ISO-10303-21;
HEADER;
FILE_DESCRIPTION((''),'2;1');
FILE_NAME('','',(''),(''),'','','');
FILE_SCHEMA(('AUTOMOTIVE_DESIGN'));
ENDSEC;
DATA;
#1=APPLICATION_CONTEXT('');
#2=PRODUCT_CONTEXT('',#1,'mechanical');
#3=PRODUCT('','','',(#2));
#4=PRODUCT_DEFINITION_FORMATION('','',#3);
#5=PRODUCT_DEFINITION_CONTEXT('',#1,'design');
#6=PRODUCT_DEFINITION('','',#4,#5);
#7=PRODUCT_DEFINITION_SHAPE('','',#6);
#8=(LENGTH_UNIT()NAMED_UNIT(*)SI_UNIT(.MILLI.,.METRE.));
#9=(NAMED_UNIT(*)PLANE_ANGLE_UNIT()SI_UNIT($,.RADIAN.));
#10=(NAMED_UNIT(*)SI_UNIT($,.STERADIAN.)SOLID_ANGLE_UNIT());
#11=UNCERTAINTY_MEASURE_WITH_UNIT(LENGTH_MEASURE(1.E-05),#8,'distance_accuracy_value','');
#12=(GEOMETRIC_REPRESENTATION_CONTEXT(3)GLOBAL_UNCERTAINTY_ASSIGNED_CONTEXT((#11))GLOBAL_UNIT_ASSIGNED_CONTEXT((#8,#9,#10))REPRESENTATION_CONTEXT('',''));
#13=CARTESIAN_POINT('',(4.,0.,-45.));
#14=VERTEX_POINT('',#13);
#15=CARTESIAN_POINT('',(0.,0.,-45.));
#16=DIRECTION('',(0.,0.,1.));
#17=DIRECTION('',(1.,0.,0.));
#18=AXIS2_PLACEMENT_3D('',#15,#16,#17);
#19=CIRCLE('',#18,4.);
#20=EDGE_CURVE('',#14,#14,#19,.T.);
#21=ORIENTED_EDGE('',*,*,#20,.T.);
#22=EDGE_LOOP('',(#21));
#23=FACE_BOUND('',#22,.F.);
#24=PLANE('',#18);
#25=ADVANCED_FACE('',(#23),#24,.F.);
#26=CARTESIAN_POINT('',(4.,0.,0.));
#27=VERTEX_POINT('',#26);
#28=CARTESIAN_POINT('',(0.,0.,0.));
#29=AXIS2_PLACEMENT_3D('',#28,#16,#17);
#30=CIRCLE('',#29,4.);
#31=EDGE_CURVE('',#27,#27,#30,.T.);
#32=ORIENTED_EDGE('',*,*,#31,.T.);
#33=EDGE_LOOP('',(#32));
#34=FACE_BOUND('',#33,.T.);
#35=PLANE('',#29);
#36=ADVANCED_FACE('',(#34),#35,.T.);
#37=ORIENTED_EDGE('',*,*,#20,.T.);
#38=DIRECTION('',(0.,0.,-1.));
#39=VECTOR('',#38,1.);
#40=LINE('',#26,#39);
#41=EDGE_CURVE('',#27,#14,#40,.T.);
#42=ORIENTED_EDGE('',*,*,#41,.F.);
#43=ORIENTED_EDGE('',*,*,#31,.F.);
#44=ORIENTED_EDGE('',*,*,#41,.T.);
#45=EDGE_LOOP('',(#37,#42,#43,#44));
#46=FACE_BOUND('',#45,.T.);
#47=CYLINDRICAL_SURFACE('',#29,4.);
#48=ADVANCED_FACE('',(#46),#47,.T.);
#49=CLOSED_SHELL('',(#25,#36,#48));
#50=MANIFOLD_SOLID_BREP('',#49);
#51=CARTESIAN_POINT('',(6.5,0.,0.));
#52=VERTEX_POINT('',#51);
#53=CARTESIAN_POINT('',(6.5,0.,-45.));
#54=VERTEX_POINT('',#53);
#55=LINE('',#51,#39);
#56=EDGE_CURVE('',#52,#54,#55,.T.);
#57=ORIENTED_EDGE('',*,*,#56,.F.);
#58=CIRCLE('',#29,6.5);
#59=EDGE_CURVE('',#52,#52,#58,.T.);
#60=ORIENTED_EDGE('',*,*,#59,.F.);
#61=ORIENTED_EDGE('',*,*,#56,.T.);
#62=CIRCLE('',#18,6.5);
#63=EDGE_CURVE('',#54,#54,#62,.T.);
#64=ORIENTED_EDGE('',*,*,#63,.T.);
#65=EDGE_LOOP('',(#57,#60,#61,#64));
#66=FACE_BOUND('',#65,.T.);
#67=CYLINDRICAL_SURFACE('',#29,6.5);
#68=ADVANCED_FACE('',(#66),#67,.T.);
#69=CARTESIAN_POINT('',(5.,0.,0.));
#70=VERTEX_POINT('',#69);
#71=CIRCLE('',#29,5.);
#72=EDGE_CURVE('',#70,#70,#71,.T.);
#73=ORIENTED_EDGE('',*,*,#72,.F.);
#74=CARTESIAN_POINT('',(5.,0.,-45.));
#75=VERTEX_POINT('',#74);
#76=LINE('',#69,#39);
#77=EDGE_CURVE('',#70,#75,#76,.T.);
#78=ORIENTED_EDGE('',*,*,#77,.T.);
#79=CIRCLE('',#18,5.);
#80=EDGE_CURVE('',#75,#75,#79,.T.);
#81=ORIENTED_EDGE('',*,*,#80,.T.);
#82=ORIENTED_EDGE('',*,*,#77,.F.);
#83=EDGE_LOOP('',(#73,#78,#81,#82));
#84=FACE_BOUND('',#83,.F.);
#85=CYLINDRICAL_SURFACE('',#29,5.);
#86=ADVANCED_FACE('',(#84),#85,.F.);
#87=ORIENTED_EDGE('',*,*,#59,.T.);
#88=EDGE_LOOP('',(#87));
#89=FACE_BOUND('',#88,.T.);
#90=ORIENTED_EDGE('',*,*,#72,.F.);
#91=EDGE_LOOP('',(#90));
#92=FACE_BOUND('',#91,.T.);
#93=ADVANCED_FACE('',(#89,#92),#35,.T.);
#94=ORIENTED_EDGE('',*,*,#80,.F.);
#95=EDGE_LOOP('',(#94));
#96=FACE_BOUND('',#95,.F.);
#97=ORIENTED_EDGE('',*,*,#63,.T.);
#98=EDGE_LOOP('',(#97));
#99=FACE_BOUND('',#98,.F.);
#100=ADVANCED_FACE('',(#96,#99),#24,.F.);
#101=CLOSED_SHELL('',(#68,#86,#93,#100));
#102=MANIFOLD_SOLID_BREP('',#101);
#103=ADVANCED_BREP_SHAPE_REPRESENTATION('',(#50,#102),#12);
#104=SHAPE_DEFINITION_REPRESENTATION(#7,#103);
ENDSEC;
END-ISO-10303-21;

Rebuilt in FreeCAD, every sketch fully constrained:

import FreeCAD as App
import Part
import Sketcher

V = App.Vector
Q = App.Units.Quantity

doc = App.newDocument("Part")
body = doc.addObject("PartDesign::Body", "Body")

# Sketch on XY plane
sketch1 = body.newObject("Sketcher::SketchObject", "Sketch")
sketch1.AttachmentSupport = (doc.getObject("XY_Plane"), [""])
sketch1.MapMode = "FlatFace"
sketch1.addGeometry(Part.Circle(V(0, 0, 0), V(0, 0, 1), 4), False)
sketch1.addConstraint([
    Sketcher.Constraint("Coincident", 0, 3, -1, 1),
    Sketcher.Constraint("Diameter", 0, Q("8 mm")),
])
pad1 = body.newObject("PartDesign::Pad", "Pad")
pad1.Profile = sketch1
pad1.Length = 45
pad1.Reversed = True
body2 = doc.addObject("PartDesign::Body", "Body001")

# Sketch on XY plane
sketch2 = body2.newObject("Sketcher::SketchObject", "Sketch001")
sketch2.AttachmentSupport = (doc.getObject("XY_Plane001"), [""])
sketch2.MapMode = "FlatFace"
sketch2.addGeometry([
    Part.Circle(V(0, 0, 0), V(0, 0, 1), 6),
    Part.Circle(V(0, 0, 0), V(0, 0, 1), 5),
], False)
sketch2.addConstraint([
    Sketcher.Constraint("Coincident", 0, 3, -1, 1),
    Sketcher.Constraint("Coincident", 1, 3, -1, 1),
    Sketcher.Constraint("Diameter", 0, Q("13 mm")),
    Sketcher.Constraint("Diameter", 1, Q("10 mm")),
])
pad2 = body2.newObject("PartDesign::Pad", "Pad001")
pad2.Profile = sketch2
pad2.Length = 45
pad2.Reversed = True

doc.recompute()
